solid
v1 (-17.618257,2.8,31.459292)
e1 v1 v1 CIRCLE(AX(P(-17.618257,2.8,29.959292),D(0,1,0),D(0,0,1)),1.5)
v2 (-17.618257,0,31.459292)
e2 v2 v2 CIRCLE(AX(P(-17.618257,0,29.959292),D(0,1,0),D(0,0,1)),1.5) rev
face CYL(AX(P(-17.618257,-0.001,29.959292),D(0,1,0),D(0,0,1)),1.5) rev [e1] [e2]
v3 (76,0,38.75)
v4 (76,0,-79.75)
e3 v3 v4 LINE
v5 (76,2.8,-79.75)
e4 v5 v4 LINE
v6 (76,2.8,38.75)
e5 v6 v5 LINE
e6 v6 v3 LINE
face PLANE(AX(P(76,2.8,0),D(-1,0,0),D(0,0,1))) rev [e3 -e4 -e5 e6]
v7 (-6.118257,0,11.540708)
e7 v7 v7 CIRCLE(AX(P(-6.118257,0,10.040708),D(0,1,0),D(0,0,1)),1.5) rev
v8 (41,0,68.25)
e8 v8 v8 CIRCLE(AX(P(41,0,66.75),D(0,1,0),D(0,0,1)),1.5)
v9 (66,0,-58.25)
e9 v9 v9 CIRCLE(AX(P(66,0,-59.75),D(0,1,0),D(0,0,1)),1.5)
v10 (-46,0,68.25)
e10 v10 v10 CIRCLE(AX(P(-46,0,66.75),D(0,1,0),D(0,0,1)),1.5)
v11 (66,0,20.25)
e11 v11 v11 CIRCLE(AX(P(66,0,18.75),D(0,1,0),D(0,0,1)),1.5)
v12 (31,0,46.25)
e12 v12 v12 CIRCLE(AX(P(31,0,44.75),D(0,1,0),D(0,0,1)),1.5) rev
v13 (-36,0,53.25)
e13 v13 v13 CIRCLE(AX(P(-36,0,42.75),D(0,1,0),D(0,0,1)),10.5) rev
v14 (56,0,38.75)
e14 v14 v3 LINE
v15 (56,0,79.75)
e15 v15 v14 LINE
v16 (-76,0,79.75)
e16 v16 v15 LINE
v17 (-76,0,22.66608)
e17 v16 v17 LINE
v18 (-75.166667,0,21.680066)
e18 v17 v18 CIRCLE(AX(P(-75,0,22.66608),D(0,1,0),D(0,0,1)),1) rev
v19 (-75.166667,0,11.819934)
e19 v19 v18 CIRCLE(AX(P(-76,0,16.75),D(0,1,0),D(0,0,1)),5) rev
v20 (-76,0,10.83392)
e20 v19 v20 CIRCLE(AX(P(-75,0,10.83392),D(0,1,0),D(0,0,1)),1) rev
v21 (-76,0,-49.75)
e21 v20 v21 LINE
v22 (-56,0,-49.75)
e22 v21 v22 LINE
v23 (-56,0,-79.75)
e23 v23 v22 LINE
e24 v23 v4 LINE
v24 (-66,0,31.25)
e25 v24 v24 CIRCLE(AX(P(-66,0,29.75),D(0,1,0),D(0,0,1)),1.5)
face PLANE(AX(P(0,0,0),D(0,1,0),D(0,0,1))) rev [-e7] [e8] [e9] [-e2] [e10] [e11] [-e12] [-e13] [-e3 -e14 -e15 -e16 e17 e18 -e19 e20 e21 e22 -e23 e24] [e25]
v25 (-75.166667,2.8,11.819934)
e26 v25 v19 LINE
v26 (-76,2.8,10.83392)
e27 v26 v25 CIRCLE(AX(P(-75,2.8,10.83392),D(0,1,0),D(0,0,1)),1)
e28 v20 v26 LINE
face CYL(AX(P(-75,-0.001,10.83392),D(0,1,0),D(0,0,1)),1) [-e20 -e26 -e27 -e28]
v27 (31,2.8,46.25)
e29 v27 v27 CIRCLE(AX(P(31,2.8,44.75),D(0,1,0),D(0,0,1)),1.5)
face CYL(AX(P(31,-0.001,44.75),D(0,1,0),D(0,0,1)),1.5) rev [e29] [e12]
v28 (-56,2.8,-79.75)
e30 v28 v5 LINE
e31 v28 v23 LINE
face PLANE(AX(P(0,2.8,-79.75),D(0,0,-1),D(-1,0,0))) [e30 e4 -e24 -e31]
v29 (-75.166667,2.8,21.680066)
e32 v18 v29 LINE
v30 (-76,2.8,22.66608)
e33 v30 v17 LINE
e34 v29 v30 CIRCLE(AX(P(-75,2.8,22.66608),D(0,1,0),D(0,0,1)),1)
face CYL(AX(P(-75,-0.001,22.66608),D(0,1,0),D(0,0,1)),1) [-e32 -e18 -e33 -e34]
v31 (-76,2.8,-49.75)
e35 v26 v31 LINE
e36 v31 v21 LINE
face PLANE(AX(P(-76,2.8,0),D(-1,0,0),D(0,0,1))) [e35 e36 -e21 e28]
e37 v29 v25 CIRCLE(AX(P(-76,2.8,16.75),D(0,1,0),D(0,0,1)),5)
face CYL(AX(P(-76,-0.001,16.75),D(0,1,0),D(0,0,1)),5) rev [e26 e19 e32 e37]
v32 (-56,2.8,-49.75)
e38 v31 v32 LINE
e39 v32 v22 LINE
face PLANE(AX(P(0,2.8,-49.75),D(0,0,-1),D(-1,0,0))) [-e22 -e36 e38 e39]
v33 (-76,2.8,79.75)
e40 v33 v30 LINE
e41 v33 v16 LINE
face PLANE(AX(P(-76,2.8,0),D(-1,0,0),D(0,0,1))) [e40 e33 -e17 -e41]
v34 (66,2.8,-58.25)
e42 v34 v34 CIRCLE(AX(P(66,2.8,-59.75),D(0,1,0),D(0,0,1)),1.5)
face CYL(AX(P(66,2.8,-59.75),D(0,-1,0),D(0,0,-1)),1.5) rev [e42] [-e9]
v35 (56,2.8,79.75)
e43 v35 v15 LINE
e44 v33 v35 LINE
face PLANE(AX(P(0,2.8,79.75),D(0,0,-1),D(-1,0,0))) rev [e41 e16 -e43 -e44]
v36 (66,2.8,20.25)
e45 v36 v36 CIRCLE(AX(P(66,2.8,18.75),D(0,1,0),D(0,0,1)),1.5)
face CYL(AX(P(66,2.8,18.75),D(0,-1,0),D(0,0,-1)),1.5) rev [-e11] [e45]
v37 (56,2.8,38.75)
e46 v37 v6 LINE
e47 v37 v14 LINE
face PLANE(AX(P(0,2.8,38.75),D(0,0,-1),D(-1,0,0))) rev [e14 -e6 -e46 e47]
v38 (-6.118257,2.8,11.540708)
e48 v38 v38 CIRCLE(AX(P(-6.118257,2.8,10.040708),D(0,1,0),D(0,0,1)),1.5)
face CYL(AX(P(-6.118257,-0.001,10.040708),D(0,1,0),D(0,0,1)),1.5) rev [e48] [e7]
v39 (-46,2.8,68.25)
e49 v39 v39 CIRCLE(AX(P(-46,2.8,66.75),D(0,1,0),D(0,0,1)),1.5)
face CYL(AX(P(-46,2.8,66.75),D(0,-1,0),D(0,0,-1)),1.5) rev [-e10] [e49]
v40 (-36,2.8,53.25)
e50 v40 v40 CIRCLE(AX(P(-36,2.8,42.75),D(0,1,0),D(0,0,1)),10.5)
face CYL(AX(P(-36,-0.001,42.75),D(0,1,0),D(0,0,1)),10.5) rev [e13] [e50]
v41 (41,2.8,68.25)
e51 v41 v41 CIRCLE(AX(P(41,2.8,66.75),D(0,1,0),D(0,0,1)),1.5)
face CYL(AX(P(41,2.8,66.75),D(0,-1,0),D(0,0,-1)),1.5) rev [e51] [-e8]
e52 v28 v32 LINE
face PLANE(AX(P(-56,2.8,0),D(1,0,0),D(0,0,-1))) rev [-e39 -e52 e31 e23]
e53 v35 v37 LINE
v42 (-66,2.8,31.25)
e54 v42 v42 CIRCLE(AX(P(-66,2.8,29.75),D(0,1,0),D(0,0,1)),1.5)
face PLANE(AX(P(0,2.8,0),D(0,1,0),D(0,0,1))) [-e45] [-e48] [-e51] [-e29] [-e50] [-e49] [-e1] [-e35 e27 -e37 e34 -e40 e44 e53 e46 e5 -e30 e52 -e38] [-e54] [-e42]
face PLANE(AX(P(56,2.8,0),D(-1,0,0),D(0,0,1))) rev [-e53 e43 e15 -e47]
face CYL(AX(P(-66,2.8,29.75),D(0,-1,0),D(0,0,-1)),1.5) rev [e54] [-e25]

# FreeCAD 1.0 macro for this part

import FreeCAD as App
import Part
import Sketcher


def edges_at(feature, points):
    """Names of the edges that pass closest to the given points."""
    edges = feature.Shape.Edges
    near = lambda p: min(range(len(edges)), key=lambda i: edges[i].distToShape(Part.Vertex(*p))[0])
    return sorted({f"Edge{near(p) + 1}" for p in points})

doc = App.newDocument("Part")
body = doc.addObject("PartDesign::Body", "Body")

sketch1 = body.newObject("Sketcher::SketchObject", "Sketch")
sketch1.AttachmentSupport = (doc.getObject("XZ_Plane"), [""])
sketch1.MapMode = "FlatFace"
sketch1.addGeometry([
    Part.LineSegment(App.Vector(-76, 79.8, 0), App.Vector(56, 79.8, 0)),
    Part.LineSegment(App.Vector(56, 79.8, 0), App.Vector(56, 38.8, 0)),
    Part.LineSegment(App.Vector(56, 38.8, 0), App.Vector(76, 38.8, 0)),
    Part.LineSegment(App.Vector(76, 38.8, 0), App.Vector(76, -79.8, 0)),
    Part.LineSegment(App.Vector(76, -79.8, 0), App.Vector(-56, -79.8, 0)),
    Part.LineSegment(App.Vector(-56, -79.8, 0), App.Vector(-56, -49.8, 0)),
    Part.LineSegment(App.Vector(-56, -49.8, 0), App.Vector(-76, -49.8, 0)),
    Part.LineSegment(App.Vector(-76, -49.8, 0), App.Vector(-76, 79.8, 0)),
    Part.Circle(App.Vector(-46, 66.8, 0), App.Vector(0, 0, 1), 1.5),
    Part.Circle(App.Vector(-66, 29.8, 0), App.Vector(0, 0, 1), 1.5),
    Part.Circle(App.Vector(41, 66.8, 0), App.Vector(0, 0, 1), 1.5),
    Part.Circle(App.Vector(66, 18.8, 0), App.Vector(0, 0, 1), 1.5),
    Part.Circle(App.Vector(66, -59.8, 0), App.Vector(0, 0, 1), 1.5),
], False)
sketch1.addConstraint([
    Sketcher.Constraint("Coincident", 0, 2, 1, 1),
    Sketcher.Constraint("Coincident", 1, 2, 2, 1),
    Sketcher.Constraint("Coincident", 2, 2, 3, 1),
    Sketcher.Constraint("Coincident", 3, 2, 4, 1),
    Sketcher.Constraint("Coincident", 4, 2, 5, 1),
    Sketcher.Constraint("Coincident", 5, 2, 6, 1),
    Sketcher.Constraint("Coincident", 6, 2, 7, 1),
    Sketcher.Constraint("Coincident", 7, 2, 0, 1),
    Sketcher.Constraint("Horizontal", 0),
    Sketcher.Constraint("Vertical", 1),
    Sketcher.Constraint("Horizontal", 2),
    Sketcher.Constraint("Vertical", 3),
    Sketcher.Constraint("Horizontal", 4),
    Sketcher.Constraint("Vertical", 5),
    Sketcher.Constraint("Horizontal", 6),
    Sketcher.Constraint("Vertical", 7),
    Sketcher.Constraint("Equal", 8, 9),
    Sketcher.Constraint("Equal", 9, 10),
    Sketcher.Constraint("Equal", 10, 11),
    Sketcher.Constraint("Equal", 11, 12),
    Sketcher.Constraint("Symmetric", 0, 2, 4, 2, -1, 1),
    Sketcher.Constraint("Horizontal", 8, 3, 10, 3),
    Sketcher.Constraint("Vertical", 11, 3, 12, 3),
    Sketcher.Constraint("Equal", 0, 4),
    Sketcher.Constraint("Diameter", 8, 3.0),
    Sketcher.Constraint("DistanceX", 0, 1, 0, 2, 132.0),
    Sketcher.Constraint("DistanceX", 2, 1, 2, 2, 20.0),
    Sketcher.Constraint("DistanceY", 1, 2, 1, 1, 41.0),
    Sketcher.Constraint("DistanceY", 5, 1, 5, 2, 30.0),
    Sketcher.Constraint("DistanceY", 3, 2, 3, 1, 118.5),
    Sketcher.Constraint("DistanceX", 8, 3, -1, 1, 46.0),
    Sketcher.Constraint("DistanceX", 9, 3, -1, 1, 66.0),
    Sketcher.Constraint("DistanceX", -1, 1, 10, 3, 41.0),
    Sketcher.Constraint("DistanceX", -1, 1, 11, 3, 66.0),
    Sketcher.Constraint("DistanceY", 9, 3, 8, 3, 37.0),
    Sketcher.Constraint("DistanceY", 11, 3, 10, 3, 48.0),
    Sketcher.Constraint("DistanceY", 10, 3, 0, 2, 13.0),
    Sketcher.Constraint("DistanceY", 3, 2, 12, 3, 20.0),
])
pad1 = body.newObject("PartDesign::Pad", "Pad")
pad1.Profile = sketch1
pad1.Length = 2.8
pad1.Reversed = True

sketch2 = body.newObject("Sketcher::SketchObject", "Sketch001")
sketch2.AttachmentSupport = (doc.getObject("XZ_Plane"), [""])
sketch2.MapMode = "FlatFace"
sketch2.AttachmentOffset = App.Placement(App.Vector(0, 0, -2.8), App.Rotation())
sketch2.addGeometry(Part.Circle(App.Vector(31, 44.8, 0), App.Vector(0, 0, 1), 1.5), False)
sketch2.addConstraint([
    Sketcher.Constraint("Diameter", 0, 3.0),
    Sketcher.Constraint("DistanceX", -1, 1, 0, 3, 31.0),
    Sketcher.Constraint("DistanceY", -1, 1, 0, 3, 44.75),
])
pocket1 = body.newObject("PartDesign::Pocket", "Pocket")
pocket1.Profile = sketch2
pocket1.Type = "UpToFirst"
pocket1.Reversed = True

sketch3 = body.newObject("Sketcher::SketchObject", "Sketch002")
sketch3.AttachmentSupport = (doc.getObject("XZ_Plane"), [""])
sketch3.MapMode = "FlatFace"
sketch3.AttachmentOffset = App.Placement(App.Vector(0, 0, -2.8), App.Rotation())
sketch3.addGeometry(Part.Circle(App.Vector(-6.1, 10, 0), App.Vector(0, 0, 1), 1.5), False)
sketch3.addConstraint([
    Sketcher.Constraint("Diameter", 0, 3.0),
    Sketcher.Constraint("DistanceX", 0, 3, -1, 1, 6.118257),
    Sketcher.Constraint("DistanceY", -1, 1, 0, 3, 10.040708),
])
pocket2 = body.newObject("PartDesign::Pocket", "Pocket001")
pocket2.Profile = sketch3
pocket2.Type = "UpToFirst"
pocket2.Reversed = True

sketch4 = body.newObject("Sketcher::SketchObject", "Sketch003")
sketch4.AttachmentSupport = (doc.getObject("XZ_Plane"), [""])
sketch4.MapMode = "FlatFace"
sketch4.AttachmentOffset = App.Placement(App.Vector(0, 0, -2.8), App.Rotation())
sketch4.addGeometry(Part.Circle(App.Vector(-17.6, 30, 0), App.Vector(0, 0, 1), 1.5), False)
sketch4.addConstraint([
    Sketcher.Constraint("Diameter", 0, 3.0),
    Sketcher.Constraint("DistanceX", 0, 3, -1, 1, 17.618257),
    Sketcher.Constraint("DistanceY", -1, 1, 0, 3, 29.959292),
])
pocket3 = body.newObject("PartDesign::Pocket", "Pocket002")
pocket3.Profile = sketch4
pocket3.Type = "UpToFirst"
pocket3.Reversed = True

sketch5 = body.newObject("Sketcher::SketchObject", "Sketch004")
sketch5.AttachmentSupport = (doc.getObject("XZ_Plane"), [""])
sketch5.MapMode = "FlatFace"
sketch5.AttachmentOffset = App.Placement(App.Vector(0, 0, -2.8), App.Rotation())
sketch5.addGeometry(Part.Circle(App.Vector(-36, 43, 0), App.Vector(0, 0, 1), 10), False)
sketch5.addConstraint([
    Sketcher.Constraint("Diameter", 0, 21.0),
    Sketcher.Constraint("DistanceX", 0, 3, -1, 1, 36.0),
    Sketcher.Constraint("DistanceY", -1, 1, 0, 3, 42.75),
])
pocket4 = body.newObject("PartDesign::Pocket", "Pocket003")
pocket4.Profile = sketch5
pocket4.Type = "UpToFirst"
pocket4.Reversed = True

sketch6 = body.newObject("Sketcher::SketchObject", "Sketch005")
sketch6.AttachmentSupport = (doc.getObject("XZ_Plane"), [""])
sketch6.MapMode = "FlatFace"
sketch6.AttachmentOffset = App.Placement(App.Vector(0, 0, -2.8), App.Rotation())
sketch6.addGeometry(Part.Circle(App.Vector(-76, 17, 0), App.Vector(0, 0, 1), 5), False)
sketch6.addConstraint([
    Sketcher.Constraint("Diameter", 0, 10.0),
    Sketcher.Constraint("DistanceX", 0, 3, -1, 1, 76.0),
    Sketcher.Constraint("DistanceY", -1, 1, 0, 3, 16.75),
])
pocket5 = body.newObject("PartDesign::Pocket", "Pocket004")
pocket5.Profile = sketch6
pocket5.Type = "UpToFirst"
pocket5.Reversed = True
doc.recompute()

fillet = body.newObject("PartDesign::Fillet", "Fillet")
fillet.Base = (pocket5, edges_at(pocket5, [(-76, 1.4, 21.75), (-76, 1.4, 11.75)]))
fillet.Radius = 1

doc.recompute()
